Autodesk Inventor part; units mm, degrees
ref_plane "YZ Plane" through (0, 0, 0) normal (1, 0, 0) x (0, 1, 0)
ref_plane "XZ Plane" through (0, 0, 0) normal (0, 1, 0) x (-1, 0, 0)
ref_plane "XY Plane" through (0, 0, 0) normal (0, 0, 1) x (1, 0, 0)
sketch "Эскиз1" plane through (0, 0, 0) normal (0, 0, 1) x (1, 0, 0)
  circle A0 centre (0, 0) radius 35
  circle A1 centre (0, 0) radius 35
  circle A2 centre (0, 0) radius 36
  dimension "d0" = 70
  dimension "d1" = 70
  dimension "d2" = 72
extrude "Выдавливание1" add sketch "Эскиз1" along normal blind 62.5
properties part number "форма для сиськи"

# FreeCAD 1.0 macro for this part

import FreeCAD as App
import Part
import Sketcher

doc = App.newDocument("Part")
body = doc.addObject("PartDesign::Body", "Body")

sketch1 = body.newObject("Sketcher::SketchObject", "Sketch")
sketch1.AttachmentSupport = (doc.getObject("XY_Plane"), [""])
sketch1.MapMode = "FlatFace"
sketch1.addGeometry([
    Part.Circle(App.Vector(0, 0, 0), App.Vector(0, 0, 1), 36),
    Part.Circle(App.Vector(0, 0, 0), App.Vector(0, 0, 1), 35),
], False)
sketch1.addConstraint([
    Sketcher.Constraint("Coincident", 0, 3, -1, 1),
    Sketcher.Constraint("Coincident", 1, 3, -1, 1),
    Sketcher.Constraint("Diameter", 0, 72.0),
    Sketcher.Constraint("Diameter", 1, 70.0),
])
pad1 = body.newObject("PartDesign::Pad", "Pad")
pad1.Profile = sketch1
pad1.Length = 62.5

doc.recompute()
